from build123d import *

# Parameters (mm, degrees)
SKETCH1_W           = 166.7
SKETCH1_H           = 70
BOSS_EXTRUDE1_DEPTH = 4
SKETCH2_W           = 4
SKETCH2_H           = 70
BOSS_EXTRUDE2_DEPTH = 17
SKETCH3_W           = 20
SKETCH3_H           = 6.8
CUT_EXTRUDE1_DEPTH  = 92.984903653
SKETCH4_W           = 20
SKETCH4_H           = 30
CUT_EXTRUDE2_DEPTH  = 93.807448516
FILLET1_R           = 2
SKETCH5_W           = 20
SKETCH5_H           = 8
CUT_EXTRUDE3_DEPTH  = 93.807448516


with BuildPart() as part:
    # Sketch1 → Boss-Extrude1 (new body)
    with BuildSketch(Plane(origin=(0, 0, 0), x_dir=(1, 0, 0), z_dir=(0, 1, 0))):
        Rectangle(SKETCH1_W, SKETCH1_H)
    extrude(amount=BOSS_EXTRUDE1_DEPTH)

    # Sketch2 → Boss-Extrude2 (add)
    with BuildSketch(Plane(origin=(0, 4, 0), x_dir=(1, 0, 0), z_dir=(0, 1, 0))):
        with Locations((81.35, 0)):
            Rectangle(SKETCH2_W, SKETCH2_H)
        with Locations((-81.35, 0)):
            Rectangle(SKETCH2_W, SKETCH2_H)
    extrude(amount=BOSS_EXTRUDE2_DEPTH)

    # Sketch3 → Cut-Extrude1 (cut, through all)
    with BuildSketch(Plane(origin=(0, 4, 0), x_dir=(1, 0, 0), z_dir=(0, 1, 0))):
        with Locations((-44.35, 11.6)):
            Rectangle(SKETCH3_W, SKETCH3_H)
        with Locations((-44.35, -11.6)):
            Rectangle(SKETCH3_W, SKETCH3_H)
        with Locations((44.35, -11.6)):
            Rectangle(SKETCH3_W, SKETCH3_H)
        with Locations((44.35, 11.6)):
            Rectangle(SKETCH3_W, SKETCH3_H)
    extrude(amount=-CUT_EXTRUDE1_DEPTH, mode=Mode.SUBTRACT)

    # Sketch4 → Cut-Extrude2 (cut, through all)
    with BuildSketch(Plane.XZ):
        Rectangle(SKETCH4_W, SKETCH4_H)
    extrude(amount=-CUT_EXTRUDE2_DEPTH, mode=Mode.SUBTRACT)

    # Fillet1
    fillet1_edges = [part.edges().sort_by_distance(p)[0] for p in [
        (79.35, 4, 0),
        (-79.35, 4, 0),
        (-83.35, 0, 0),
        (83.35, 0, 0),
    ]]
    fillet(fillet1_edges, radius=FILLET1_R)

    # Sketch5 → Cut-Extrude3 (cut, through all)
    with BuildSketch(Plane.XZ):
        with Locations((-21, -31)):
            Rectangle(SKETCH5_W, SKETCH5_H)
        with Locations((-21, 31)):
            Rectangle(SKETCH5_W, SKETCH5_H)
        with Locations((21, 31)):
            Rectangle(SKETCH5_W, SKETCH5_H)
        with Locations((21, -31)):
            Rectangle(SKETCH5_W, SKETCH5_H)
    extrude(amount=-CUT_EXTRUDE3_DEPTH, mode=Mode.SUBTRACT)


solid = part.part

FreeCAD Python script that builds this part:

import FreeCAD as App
import Part
import Sketcher
from FreeCAD import Vector


def edges_at(feature, points):
    """Names of the edges that pass closest to the given points."""
    edges = feature.Shape.Edges
    near = lambda p: min(range(len(edges)), key=lambda i: edges[i].distToShape(Part.Vertex(*p))[0])
    return sorted({f"Edge{near(p) + 1}" for p in points})

doc = App.newDocument("Part")
body = doc.addObject("PartDesign::Body", "Body")

# Sketch on XZ plane
sketch1 = body.newObject("Sketcher::SketchObject", "Sketch")
sketch1.AttachmentSupport = (doc.getObject("XZ_Plane"), [""])
sketch1.MapMode = "FlatFace"
sketch1.addGeometry([
    Part.LineSegment(Vector(-83, -35, 0), Vector(-83, 35, 0)),
    Part.LineSegment(Vector(-83, 35, 0), Vector(83, 35, 0)),
    Part.LineSegment(Vector(83, 35, 0), Vector(83, -35, 0)),
    Part.LineSegment(Vector(83, -35, 0), Vector(-83, -35, 0)),
], False)
sketch1.addConstraint([
    Sketcher.Constraint("Coincident", 0, 2, 1, 1),
    Sketcher.Constraint("Coincident", 1, 2, 2, 1),
    Sketcher.Constraint("Coincident", 2, 2, 3, 1),
    Sketcher.Constraint("Coincident", 3, 2, 0, 1),
    Sketcher.Constraint("Vertical", 0),
    Sketcher.Constraint("Horizontal", 1),
    Sketcher.Constraint("Vertical", 2),
    Sketcher.Constraint("Horizontal", 3),
    Sketcher.Constraint("Symmetric", 0, 2, 2, 2, -1, 1),
    Sketcher.Constraint("DistanceY", 0, 1, 0, 2, 70.0),
    Sketcher.Constraint("DistanceX", 1, 1, 1, 2, 166.7),
])
pad1 = body.newObject("PartDesign::Pad", "Pad")
pad1.Profile = sketch1
pad1.Length = 4
pad1.Reversed = True

# Sketch on XZ plane
sketch2 = body.newObject("Sketcher::SketchObject", "Sketch001")
sketch2.AttachmentSupport = (doc.getObject("XZ_Plane"), [""])
sketch2.MapMode = "FlatFace"
sketch2.AttachmentOffset = App.Placement(Vector(0, 0, -4), App.Rotation())
sketch2.addGeometry([
    Part.LineSegment(Vector(79.3, -35, 0), Vector(79.3, 35, 0)),  # 0
    Part.LineSegment(Vector(79.3, 35, 0), Vector(83.3, 35, 0)),  # 1
    Part.LineSegment(Vector(83.3, 35, 0), Vector(83.3, -35, 0)),  # 2
    Part.LineSegment(Vector(83.3, -35, 0), Vector(79.3, -35, 0)),  # 3
    Part.LineSegment(Vector(-83.3, -35, 0), Vector(-83.3, 35, 0)),  # 4
    Part.LineSegment(Vector(-83.3, 35, 0), Vector(-79.3, 35, 0)),  # 5
    Part.LineSegment(Vector(-79.3, 35, 0), Vector(-79.3, -35, 0)),  # 6
    Part.LineSegment(Vector(-79.3, -35, 0), Vector(-83.3, -35, 0)),  # 7
], False)
sketch2.addConstraint([
    Sketcher.Constraint("Coincident", 0, 2, 1, 1),
    Sketcher.Constraint("Coincident", 1, 2, 2, 1),
    Sketcher.Constraint("Coincident", 2, 2, 3, 1),
    Sketcher.Constraint("Coincident", 3, 2, 0, 1),
    Sketcher.Constraint("Coincident", 4, 2, 5, 1),
    Sketcher.Constraint("Coincident", 5, 2, 6, 1),
    Sketcher.Constraint("Coincident", 6, 2, 7, 1),
    Sketcher.Constraint("Coincident", 7, 2, 4, 1),
    Sketcher.Constraint("Vertical", 0),
    Sketcher.Constraint("Horizontal", 1),
    Sketcher.Constraint("Vertical", 2),
    Sketcher.Constraint("Horizontal", 3),
    Sketcher.Constraint("Vertical", 4),
    Sketcher.Constraint("Horizontal", 5),
    Sketcher.Constraint("Vertical", 6),
    Sketcher.Constraint("Horizontal", 7),
    Sketcher.Constraint("Symmetric", 2, 2, 4, 2, -1, 1),
    Sketcher.Constraint("Symmetric", 0, 2, 6, 2, -1, 1),
    Sketcher.Constraint("Horizontal", 1, 2, 4, 2),
    Sketcher.Constraint("DistanceX", 1, 1, 1, 2, 4.0),
    Sketcher.Constraint("DistanceY", 0, 1, 0, 2, 70.0),
    Sketcher.Constraint("DistanceX", 4, 2, 0, 2, 162.7),
])
pad2 = body.newObject("PartDesign::Pad", "Pad001")
pad2.Profile = sketch2
pad2.Length = 17
pad2.Reversed = True

# Sketch on XZ plane
sketch3 = body.newObject("Sketcher::SketchObject", "Sketch002")
sketch3.AttachmentSupport = (doc.getObject("XZ_Plane"), [""])
sketch3.MapMode = "FlatFace"
sketch3.AttachmentOffset = App.Placement(Vector(0, 0, -4), App.Rotation())
sketch3.addGeometry([
    Part.LineSegment(Vector(-54, -15, 0), Vector(-54, -8, 0)),  # 0
    Part.LineSegment(Vector(-54, -8, 0), Vector(-34, -8, 0)),  # 1
    Part.LineSegment(Vector(-34, -8, 0), Vector(-34, -15, 0)),  # 2
    Part.LineSegment(Vector(-34, -15, 0), Vector(-54, -15, 0)),  # 3
    Part.LineSegment(Vector(-54, 8, 0), Vector(-54, 15, 0)),  # 4
    Part.LineSegment(Vector(-54, 15, 0), Vector(-34, 15, 0)),  # 5
    Part.LineSegment(Vector(-34, 15, 0), Vector(-34, 8, 0)),  # 6
    Part.LineSegment(Vector(-34, 8, 0), Vector(-54, 8, 0)),  # 7
    Part.LineSegment(Vector(34, 8, 0), Vector(34, 15, 0)),  # 8
    Part.LineSegment(Vector(34, 15, 0), Vector(54, 15, 0)),  # 9
    Part.LineSegment(Vector(54, 15, 0), Vector(54, 8, 0)),  # 10
    Part.LineSegment(Vector(54, 8, 0), Vector(34, 8, 0)),  # 11
    Part.LineSegment(Vector(34, -15, 0), Vector(34, -8, 0)),  # 12
    Part.LineSegment(Vector(34, -8, 0), Vector(54, -8, 0)),  # 13
    Part.LineSegment(Vector(54, -8, 0), Vector(54, -15, 0)),  # 14
    Part.LineSegment(Vector(54, -15, 0), Vector(34, -15, 0)),  # 15
], False)
sketch3.addConstraint([
    Sketcher.Constraint("Coincident", 0, 2, 1, 1),
    Sketcher.Constraint("Coincident", 1, 2, 2, 1),
    Sketcher.Constraint("Coincident", 2, 2, 3, 1),
    Sketcher.Constraint("Coincident", 3, 2, 0, 1),
    Sketcher.Constraint("Coincident", 4, 2, 5, 1),
    Sketcher.Constraint("Coincident", 5, 2, 6, 1),
    Sketcher.Constraint("Coincident", 6, 2, 7, 1),
    Sketcher.Constraint("Coincident", 7, 2, 4, 1),
    Sketcher.Constraint("Coincident", 8, 2, 9, 1),
    Sketcher.Constraint("Coincident", 9, 2, 10, 1),
    Sketcher.Constraint("Coincident", 10, 2, 11, 1),
    Sketcher.Constraint("Coincident", 11, 2, 8, 1),
    Sketcher.Constraint("Coincident", 12, 2, 13, 1),
    Sketcher.Constraint("Coincident", 13, 2, 14, 1),
    Sketcher.Constraint("Coincident", 14, 2, 15, 1),
    Sketcher.Constraint("Coincident", 15, 2, 12, 1),
    Sketcher.Constraint("Vertical", 0),
    Sketcher.Constraint("Horizontal", 1),
    Sketcher.Constraint("Vertical", 2),
    Sketcher.Constraint("Horizontal", 3),
    Sketcher.Constraint("Vertical", 4),
    Sketcher.Constraint("Horizontal", 5),
    Sketcher.Constraint("Vertical", 6),
    Sketcher.Constraint("Horizontal", 7),
    Sketcher.Constraint("Vertical", 8),
    Sketcher.Constraint("Horizontal", 9),
    Sketcher.Constraint("Vertical", 10),
    Sketcher.Constraint("Horizontal", 11),
    Sketcher.Constraint("Vertical", 12),
    Sketcher.Constraint("Horizontal", 13),
    Sketcher.Constraint("Vertical", 14),
    Sketcher.Constraint("Horizontal", 15),
    Sketcher.Constraint("Symmetric", 2, 2, 8, 2, -1, 1),
    Sketcher.Constraint("Symmetric", 0, 2, 10, 2, -1, 1),
    Sketcher.Constraint("Symmetric", 6, 2, 12, 2, -1, 1),
    Sketcher.Constraint("Symmetric", 4, 2, 14, 2, -1, 1),
    Sketcher.Constraint("Symmetric", 5, 2, 8, 2, -2),
    Sketcher.Constraint("Symmetric", 7, 2, 10, 2, -2),
    Sketcher.Constraint("DistanceX", 1, 1, 1, 2, 20.0),
    Sketcher.Constraint("DistanceY", 0, 1, 0, 2, 6.8),
    Sketcher.Constraint("DistanceY", 2, 2, -1, 1, 15.0),
    Sketcher.Constraint("DistanceX", 5, 2, 8, 2, 68.7),
])
pocket1 = body.newObject("PartDesign::Pocket", "Pocket")
pocket1.Profile = sketch3
pocket1.Type = "ThroughAll"
pocket1.Reversed = True

# Sketch on XZ plane
sketch4 = body.newObject("Sketcher::SketchObject", "Sketch003")
sketch4.AttachmentSupport = (doc.getObject("XZ_Plane"), [""])
sketch4.MapMode = "FlatFace"
sketch4.addGeometry([
    Part.LineSegment(Vector(-10, 15, 0), Vector(-10, -15, 0)),
    Part.LineSegment(Vector(-10, -15, 0), Vector(10, -15, 0)),
    Part.LineSegment(Vector(10, -15, 0), Vector(10, 15, 0)),
    Part.LineSegment(Vector(10, 15, 0), Vector(-10, 15, 0)),
], False)
sketch4.addConstraint([
    Sketcher.Constraint("Coincident", 0, 2, 1, 1),
    Sketcher.Constraint("Coincident", 1, 2, 2, 1),
    Sketcher.Constraint("Coincident", 2, 2, 3, 1),
    Sketcher.Constraint("Coincident", 3, 2, 0, 1),
    Sketcher.Constraint("Vertical", 0),
    Sketcher.Constraint("Horizontal", 1),
    Sketcher.Constraint("Vertical", 2),
    Sketcher.Constraint("Horizontal", 3),
    Sketcher.Constraint("Symmetric", 0, 2, 2, 2, -1, 1),
    Sketcher.Constraint("DistanceX", 1, 1, 1, 2, 20.0),
    Sketcher.Constraint("DistanceY", 0, 2, 0, 1, 30.0),
])
pocket2 = body.newObject("PartDesign::Pocket", "Pocket001")
pocket2.Profile = sketch4
pocket2.Type = "ThroughAll"
doc.recompute()

fillet = body.newObject("PartDesign::Fillet", "Fillet")
fillet.Base = (pocket2, edges_at(pocket2, [
    (79.35, 4, 0),
    (-79.35, 4, 0),
    (-83.35, 0, 0),
    (83.35, 0, 0),
]))
fillet.Radius = 2

# Sketch on XZ plane
sketch5 = body.newObject("Sketcher::SketchObject", "Sketch004")
sketch5.AttachmentSupport = (doc.getObject("XZ_Plane"), [""])
sketch5.MapMode = "FlatFace"
sketch5.addGeometry([
    Part.LineSegment(Vector(-31, -27, 0), Vector(-31, -35, 0)),  # 0
    Part.LineSegment(Vector(-31, -35, 0), Vector(-11, -35, 0)),  # 1
    Part.LineSegment(Vector(-11, -35, 0), Vector(-11, -27, 0)),  # 2
    Part.LineSegment(Vector(-11, -27, 0), Vector(-31, -27, 0)),  # 3
    Part.LineSegment(Vector(-31, 35, 0), Vector(-31, 27, 0)),  # 4
    Part.LineSegment(Vector(-31, 27, 0), Vector(-11, 27, 0)),  # 5
    Part.LineSegment(Vector(-11, 27, 0), Vector(-11, 35, 0)),  # 6
    Part.LineSegment(Vector(-11, 35, 0), Vector(-31, 35, 0)),  # 7
    Part.LineSegment(Vector(11, 35, 0), Vector(11, 27, 0)),  # 8
    Part.LineSegment(Vector(11, 27, 0), Vector(31, 27, 0)),  # 9
    Part.LineSegment(Vector(31, 27, 0), Vector(31, 35, 0)),  # 10
    Part.LineSegment(Vector(31, 35, 0), Vector(11, 35, 0)),  # 11
    Part.LineSegment(Vector(11, -27, 0), Vector(11, -35, 0)),  # 12
    Part.LineSegment(Vector(11, -35, 0), Vector(31, -35, 0)),  # 13
    Part.LineSegment(Vector(31, -35, 0), Vector(31, -27, 0)),  # 14
    Part.LineSegment(Vector(31, -27, 0), Vector(11, -27, 0)),  # 15
], False)
sketch5.addConstraint([
    Sketcher.Constraint("Coincident", 0, 2, 1, 1),
    Sketcher.Constraint("Coincident", 1, 2, 2, 1),
    Sketcher.Constraint("Coincident", 2, 2, 3, 1),
    Sketcher.Constraint("Coincident", 3, 2, 0, 1),
    Sketcher.Constraint("Coincident", 4, 2, 5, 1),
    Sketcher.Constraint("Coincident", 5, 2, 6, 1),
    Sketcher.Constraint("Coincident", 6, 2, 7, 1),
    Sketcher.Constraint("Coincident", 7, 2, 4, 1),
    Sketcher.Constraint("Coincident", 8, 2, 9, 1),
    Sketcher.Constraint("Coincident", 9, 2, 10, 1),
    Sketcher.Constraint("Coincident", 10, 2, 11, 1),
    Sketcher.Constraint("Coincident", 11, 2, 8, 1),
    Sketcher.Constraint("Coincident", 12, 2, 13, 1),
    Sketcher.Constraint("Coincident", 13, 2, 14, 1),
    Sketcher.Constraint("Coincident", 14, 2, 15, 1),
    Sketcher.Constraint("Coincident", 15, 2, 12, 1),
    Sketcher.Constraint("Vertical", 0),
    Sketcher.Constraint("Horizontal", 1),
    Sketcher.Constraint("Vertical", 2),
    Sketcher.Constraint("Horizontal", 3),
    Sketcher.Constraint("Vertical", 4),
    Sketcher.Constraint("Horizontal", 5),
    Sketcher.Constraint("Vertical", 6),
    Sketcher.Constraint("Horizontal", 7),
    Sketcher.Constraint("Vertical", 8),
    Sketcher.Constraint("Horizontal", 9),
    Sketcher.Constraint("Vertical", 10),
    Sketcher.Constraint("Horizontal", 11),
    Sketcher.Constraint("Vertical", 12),
    Sketcher.Constraint("Horizontal", 13),
    Sketcher.Constraint("Vertical", 14),
    Sketcher.Constraint("Horizontal", 15),
    Sketcher.Constraint("Symmetric", 2, 2, 8, 2, -1, 1),
    Sketcher.Constraint("Symmetric", 0, 2, 10, 2, -1, 1),
    Sketcher.Constraint("Symmetric", 6, 2, 12, 2, -1, 1),
    Sketcher.Constraint("Symmetric", 4, 2, 14, 2, -1, 1),
    Sketcher.Constraint("Symmetric", 5, 2, 8, 2, -2),
    Sketcher.Constraint("Symmetric", 7, 2, 10, 2, -2),
    Sketcher.Constraint("DistanceX", 1, 1, 1, 2, 20.0),
    Sketcher.Constraint("DistanceY", 0, 2, 0, 1, 8.0),
    Sketcher.Constraint("DistanceX", 0, 2, -1, 1, 31.0),
    Sketcher.Constraint("DistanceY", 0, 2, -1, 1, 35.0),
])
pocket3 = body.newObject("PartDesign::Pocket", "Pocket002")
pocket3.Profile = sketch5
pocket3.Type = "ThroughAll"

doc.recompute()
